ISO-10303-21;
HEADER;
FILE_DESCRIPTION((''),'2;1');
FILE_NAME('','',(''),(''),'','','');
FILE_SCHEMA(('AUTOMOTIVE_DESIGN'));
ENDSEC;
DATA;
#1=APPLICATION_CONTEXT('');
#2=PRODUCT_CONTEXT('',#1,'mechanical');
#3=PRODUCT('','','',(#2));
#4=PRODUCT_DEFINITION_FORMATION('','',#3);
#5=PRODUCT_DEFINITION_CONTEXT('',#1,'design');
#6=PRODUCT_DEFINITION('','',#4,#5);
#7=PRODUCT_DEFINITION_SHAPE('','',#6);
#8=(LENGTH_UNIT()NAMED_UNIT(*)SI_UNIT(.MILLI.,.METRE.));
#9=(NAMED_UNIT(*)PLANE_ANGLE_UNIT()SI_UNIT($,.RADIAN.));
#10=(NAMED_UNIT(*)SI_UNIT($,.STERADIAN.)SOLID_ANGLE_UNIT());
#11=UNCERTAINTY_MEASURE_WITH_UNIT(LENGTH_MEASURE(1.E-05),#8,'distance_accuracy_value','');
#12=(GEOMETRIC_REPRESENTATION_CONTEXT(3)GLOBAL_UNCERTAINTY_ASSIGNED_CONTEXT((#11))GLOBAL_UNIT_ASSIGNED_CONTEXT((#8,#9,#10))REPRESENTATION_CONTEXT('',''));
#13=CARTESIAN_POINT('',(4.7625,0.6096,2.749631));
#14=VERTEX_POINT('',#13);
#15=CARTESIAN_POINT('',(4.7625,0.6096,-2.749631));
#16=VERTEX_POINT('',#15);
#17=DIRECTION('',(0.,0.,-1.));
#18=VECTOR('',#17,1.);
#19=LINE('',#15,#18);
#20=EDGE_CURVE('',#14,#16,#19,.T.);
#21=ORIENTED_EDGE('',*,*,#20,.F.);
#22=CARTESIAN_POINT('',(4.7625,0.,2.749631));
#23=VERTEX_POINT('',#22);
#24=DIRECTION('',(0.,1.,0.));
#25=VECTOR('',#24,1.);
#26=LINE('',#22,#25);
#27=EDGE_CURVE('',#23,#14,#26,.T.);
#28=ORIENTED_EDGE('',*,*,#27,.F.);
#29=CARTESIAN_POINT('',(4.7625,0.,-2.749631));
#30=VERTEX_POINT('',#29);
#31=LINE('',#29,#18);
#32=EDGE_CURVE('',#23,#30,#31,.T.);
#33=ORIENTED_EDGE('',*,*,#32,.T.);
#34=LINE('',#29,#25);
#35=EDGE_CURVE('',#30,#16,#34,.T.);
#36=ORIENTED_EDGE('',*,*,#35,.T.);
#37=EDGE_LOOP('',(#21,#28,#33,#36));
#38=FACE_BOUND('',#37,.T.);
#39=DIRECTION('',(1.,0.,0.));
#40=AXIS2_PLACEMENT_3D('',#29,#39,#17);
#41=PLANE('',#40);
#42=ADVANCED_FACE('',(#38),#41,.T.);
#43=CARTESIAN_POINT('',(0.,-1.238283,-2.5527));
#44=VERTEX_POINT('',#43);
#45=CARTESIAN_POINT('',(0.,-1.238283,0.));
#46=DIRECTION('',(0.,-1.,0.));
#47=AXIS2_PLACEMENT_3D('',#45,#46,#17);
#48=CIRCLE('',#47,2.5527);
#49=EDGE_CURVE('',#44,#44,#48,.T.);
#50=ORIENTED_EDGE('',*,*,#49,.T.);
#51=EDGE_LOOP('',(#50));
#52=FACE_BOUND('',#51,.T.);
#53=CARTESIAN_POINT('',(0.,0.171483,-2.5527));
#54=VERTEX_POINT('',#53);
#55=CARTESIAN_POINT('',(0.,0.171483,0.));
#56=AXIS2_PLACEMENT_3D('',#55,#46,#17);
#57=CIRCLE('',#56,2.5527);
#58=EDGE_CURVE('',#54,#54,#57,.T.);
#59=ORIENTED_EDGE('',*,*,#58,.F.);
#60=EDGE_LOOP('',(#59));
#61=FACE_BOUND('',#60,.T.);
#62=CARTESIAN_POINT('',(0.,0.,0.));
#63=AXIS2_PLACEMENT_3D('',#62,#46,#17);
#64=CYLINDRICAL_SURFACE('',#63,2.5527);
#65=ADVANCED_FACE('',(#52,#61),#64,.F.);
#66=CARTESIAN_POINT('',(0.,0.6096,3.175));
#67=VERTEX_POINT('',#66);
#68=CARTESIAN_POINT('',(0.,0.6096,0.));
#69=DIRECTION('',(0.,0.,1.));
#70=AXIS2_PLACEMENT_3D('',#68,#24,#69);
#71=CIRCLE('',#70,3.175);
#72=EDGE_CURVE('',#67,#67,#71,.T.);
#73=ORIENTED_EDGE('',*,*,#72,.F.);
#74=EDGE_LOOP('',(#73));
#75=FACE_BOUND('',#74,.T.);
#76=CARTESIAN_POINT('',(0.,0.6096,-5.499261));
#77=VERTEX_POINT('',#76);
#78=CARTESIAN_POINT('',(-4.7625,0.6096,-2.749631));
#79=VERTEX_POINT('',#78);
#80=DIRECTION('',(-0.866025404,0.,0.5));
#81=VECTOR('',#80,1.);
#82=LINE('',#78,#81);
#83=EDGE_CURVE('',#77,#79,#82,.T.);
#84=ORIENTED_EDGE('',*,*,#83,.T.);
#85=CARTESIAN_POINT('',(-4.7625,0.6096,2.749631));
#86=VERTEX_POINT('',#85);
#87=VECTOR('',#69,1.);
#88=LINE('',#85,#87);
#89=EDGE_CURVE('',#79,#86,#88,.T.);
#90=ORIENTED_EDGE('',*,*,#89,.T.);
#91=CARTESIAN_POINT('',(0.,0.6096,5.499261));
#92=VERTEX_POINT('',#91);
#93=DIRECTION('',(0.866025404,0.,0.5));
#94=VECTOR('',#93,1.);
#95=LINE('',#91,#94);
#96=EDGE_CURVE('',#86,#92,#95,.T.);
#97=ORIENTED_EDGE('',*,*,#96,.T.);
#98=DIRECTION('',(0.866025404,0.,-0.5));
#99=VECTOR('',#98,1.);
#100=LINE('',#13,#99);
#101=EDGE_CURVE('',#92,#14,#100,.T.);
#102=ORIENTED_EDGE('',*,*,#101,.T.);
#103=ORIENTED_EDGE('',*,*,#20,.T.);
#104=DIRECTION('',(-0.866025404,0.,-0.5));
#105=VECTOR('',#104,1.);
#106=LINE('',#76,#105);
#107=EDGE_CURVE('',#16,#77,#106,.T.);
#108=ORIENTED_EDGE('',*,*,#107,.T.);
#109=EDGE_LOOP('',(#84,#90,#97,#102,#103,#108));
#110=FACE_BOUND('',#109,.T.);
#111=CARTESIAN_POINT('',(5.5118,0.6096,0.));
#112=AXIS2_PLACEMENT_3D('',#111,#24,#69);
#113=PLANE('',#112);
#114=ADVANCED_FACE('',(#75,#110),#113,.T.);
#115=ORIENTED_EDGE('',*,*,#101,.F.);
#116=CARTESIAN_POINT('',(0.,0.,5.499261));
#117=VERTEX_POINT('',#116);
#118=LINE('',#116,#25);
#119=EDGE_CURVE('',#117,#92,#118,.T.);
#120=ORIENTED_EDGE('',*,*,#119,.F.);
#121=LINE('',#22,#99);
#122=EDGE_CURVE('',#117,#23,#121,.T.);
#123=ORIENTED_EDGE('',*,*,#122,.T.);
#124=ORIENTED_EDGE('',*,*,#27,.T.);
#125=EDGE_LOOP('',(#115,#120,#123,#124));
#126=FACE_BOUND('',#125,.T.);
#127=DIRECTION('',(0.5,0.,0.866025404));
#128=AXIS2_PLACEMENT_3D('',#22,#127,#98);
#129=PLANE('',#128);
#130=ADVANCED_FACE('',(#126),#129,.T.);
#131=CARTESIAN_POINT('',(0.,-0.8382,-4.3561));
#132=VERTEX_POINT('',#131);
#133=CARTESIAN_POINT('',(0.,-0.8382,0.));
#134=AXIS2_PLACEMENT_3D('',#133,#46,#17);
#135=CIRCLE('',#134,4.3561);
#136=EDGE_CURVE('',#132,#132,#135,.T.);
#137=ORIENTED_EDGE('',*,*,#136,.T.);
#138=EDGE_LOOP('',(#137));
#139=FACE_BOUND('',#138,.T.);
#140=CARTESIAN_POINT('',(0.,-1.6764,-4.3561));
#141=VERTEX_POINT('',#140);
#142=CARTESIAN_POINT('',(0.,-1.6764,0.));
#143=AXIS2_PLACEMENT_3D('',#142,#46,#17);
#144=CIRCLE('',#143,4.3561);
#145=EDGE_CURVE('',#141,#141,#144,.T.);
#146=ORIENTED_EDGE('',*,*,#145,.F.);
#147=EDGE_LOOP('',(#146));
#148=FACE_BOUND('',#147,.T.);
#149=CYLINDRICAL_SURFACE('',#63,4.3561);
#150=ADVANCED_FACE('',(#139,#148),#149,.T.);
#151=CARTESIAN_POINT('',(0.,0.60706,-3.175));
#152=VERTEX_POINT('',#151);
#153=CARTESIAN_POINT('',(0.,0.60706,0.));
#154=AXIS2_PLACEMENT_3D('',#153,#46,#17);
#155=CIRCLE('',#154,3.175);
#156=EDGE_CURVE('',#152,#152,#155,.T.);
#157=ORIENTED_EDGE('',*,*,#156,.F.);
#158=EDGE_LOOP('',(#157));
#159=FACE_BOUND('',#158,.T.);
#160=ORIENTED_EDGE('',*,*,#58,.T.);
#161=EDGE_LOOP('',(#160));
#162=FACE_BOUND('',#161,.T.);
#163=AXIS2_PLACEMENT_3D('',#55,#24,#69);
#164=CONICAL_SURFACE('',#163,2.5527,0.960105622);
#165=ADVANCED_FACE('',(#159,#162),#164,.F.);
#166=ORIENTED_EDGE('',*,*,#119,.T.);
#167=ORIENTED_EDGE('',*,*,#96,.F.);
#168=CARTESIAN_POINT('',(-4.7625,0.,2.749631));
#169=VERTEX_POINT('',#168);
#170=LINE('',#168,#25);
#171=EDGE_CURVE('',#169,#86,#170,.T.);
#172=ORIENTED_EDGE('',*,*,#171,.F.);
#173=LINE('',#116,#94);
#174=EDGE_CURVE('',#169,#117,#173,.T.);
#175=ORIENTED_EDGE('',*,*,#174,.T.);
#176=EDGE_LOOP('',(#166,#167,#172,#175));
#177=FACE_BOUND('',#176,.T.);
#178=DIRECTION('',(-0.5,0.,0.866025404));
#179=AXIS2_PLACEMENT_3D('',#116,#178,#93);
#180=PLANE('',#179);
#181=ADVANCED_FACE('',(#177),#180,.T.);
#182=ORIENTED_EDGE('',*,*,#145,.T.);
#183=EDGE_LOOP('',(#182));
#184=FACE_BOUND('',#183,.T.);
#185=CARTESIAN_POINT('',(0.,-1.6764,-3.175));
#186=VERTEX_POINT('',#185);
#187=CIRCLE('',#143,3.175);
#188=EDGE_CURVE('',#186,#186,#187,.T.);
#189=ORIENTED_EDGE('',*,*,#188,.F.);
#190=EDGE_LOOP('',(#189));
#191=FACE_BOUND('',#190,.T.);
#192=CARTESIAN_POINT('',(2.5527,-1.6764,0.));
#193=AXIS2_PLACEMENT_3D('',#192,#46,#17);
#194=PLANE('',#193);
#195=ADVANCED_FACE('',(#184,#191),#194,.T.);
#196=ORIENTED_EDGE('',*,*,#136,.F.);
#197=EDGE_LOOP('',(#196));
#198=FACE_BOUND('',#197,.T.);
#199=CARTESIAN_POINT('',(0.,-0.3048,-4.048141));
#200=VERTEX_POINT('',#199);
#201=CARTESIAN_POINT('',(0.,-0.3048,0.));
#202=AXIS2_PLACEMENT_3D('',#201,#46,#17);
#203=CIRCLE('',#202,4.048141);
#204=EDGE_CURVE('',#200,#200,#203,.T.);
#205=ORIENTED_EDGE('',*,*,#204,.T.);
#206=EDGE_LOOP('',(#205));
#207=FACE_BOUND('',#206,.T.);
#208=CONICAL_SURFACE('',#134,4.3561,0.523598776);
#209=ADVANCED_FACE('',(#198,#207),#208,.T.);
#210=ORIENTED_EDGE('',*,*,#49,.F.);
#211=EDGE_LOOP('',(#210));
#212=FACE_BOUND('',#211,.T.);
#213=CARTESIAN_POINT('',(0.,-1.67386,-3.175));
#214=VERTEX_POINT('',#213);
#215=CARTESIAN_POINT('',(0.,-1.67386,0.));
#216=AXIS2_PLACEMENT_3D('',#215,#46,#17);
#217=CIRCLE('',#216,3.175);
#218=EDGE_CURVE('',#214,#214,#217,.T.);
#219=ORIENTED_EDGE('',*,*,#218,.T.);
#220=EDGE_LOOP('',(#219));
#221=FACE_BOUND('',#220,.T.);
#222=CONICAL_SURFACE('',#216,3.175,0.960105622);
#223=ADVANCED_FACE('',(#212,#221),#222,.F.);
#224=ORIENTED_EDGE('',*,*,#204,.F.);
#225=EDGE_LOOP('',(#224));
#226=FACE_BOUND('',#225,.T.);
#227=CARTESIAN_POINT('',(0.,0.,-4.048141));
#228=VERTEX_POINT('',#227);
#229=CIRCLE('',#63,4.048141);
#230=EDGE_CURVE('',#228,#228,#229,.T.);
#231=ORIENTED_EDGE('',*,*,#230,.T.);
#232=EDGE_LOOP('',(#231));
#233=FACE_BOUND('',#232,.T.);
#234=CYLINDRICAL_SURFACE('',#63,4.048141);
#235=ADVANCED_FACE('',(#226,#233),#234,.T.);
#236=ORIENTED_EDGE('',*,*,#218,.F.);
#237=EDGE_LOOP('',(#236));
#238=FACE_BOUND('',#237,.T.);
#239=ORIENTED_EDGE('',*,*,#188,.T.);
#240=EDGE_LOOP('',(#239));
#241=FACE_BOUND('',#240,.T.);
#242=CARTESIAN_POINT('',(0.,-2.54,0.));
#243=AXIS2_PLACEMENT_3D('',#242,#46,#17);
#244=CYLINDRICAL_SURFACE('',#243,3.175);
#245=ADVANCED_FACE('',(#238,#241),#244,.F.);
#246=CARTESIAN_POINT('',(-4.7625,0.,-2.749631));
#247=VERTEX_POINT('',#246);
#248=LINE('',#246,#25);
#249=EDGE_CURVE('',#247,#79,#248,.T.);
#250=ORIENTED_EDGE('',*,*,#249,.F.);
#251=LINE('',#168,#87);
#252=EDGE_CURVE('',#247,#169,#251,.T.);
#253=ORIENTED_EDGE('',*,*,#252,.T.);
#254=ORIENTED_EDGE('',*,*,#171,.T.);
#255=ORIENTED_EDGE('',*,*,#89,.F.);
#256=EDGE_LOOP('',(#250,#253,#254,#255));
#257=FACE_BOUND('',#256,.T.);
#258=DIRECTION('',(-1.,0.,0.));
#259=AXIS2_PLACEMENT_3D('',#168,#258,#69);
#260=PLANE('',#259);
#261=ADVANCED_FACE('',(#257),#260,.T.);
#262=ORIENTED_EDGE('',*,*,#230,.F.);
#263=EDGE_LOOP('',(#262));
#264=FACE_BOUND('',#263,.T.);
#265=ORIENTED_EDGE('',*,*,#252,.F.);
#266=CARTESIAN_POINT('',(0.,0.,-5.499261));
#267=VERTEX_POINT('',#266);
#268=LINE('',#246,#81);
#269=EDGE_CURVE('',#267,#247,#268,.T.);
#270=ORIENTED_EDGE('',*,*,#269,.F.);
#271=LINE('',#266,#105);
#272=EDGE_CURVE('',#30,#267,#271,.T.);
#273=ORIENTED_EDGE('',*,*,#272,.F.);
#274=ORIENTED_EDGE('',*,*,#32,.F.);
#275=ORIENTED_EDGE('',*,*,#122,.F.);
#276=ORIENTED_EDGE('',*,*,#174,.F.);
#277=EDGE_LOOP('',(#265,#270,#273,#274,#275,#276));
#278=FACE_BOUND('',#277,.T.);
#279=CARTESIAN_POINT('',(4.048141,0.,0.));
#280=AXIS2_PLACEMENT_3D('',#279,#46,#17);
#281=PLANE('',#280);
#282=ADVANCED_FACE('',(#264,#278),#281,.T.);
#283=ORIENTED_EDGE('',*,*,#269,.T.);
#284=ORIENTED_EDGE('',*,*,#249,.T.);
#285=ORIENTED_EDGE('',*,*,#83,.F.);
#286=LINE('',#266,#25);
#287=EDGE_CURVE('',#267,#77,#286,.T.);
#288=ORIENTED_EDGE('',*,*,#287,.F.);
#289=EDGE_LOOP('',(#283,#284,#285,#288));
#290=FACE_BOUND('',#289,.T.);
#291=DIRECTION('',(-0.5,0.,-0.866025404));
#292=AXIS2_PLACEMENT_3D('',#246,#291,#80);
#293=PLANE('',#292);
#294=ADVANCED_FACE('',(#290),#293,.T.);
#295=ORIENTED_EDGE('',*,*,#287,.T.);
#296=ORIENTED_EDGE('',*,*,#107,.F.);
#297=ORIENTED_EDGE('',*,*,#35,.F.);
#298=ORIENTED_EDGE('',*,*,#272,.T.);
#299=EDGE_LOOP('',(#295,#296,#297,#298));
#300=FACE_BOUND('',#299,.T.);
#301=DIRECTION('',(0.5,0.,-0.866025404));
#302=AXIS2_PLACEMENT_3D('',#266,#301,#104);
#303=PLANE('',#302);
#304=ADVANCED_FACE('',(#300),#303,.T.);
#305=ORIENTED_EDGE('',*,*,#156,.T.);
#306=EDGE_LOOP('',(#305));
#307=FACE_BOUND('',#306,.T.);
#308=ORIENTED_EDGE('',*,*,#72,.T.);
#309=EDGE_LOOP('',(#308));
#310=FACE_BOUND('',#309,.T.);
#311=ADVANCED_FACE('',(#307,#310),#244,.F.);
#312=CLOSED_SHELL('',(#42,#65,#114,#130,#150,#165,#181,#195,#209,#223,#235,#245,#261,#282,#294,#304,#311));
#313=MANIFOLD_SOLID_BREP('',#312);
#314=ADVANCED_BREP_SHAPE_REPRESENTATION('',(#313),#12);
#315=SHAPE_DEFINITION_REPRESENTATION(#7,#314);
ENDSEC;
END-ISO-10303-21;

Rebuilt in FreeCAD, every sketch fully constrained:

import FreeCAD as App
import Part
import Sketcher
from FreeCAD import Vector
Q = App.Units.Quantity


def add_polygon(sketch, points):
    """Adds a closed chain of lines whose ends are joined by coincident constraints."""
    first, n = sketch.GeometryCount, len(points)
    for a, b in zip(points, points[1:] + points[:1]):
        sketch.addGeometry(Part.LineSegment(App.Vector(*a, 0), App.Vector(*b, 0)), False)
    for i in range(n):
        sketch.addConstraint(Sketcher.Constraint("Coincident", first + i, 2, first + (i + 1) % n, 1))

doc = App.newDocument("Part")
body = doc.addObject("PartDesign::Body", "Body")

# Sketch on XY plane
sketch1 = body.newObject("Sketcher::SketchObject", "Sketch")
sketch1.AttachmentSupport = (doc.getObject("XY_Plane"), [""])
sketch1.MapMode = "FlatFace"
add_polygon(sketch1, [(4.05, 0), (5.51, 0), (5.51, 0.61), (2.55, 0.61), (2.55, -1.68), (4.36, -1.68), (4.36, -0.84), (4.05, -0.3)])  # lines 0-7
sketch1.addConstraint([
    Sketcher.Constraint("Horizontal", 0),
    Sketcher.Constraint("Vertical", 1),
    Sketcher.Constraint("Horizontal", 2),
    Sketcher.Constraint("Vertical", 3),
    Sketcher.Constraint("Horizontal", 4),
    Sketcher.Constraint("Vertical", 5),
    Sketcher.Constraint("Vertical", 7),
    Sketcher.Constraint("PointOnObject", 0, 2, -1),
    Sketcher.Constraint("Angle", 6, Q("120 deg")),
    Sketcher.Constraint("DistanceY", 3, 2, 3, 1, Q("0.09 in")),
    Sketcher.Constraint("DistanceX", 4, 1, 4, 2, Q("0.071 in")),
    Sketcher.Constraint("DistanceY", 1, 1, 1, 2, Q("0.024 in")),
    Sketcher.Constraint("DistanceY", 5, 1, 5, 2, Q("0.033 in")),
    Sketcher.Constraint("DistanceY", 7, 1, 7, 2, Q("0.012 in")),
    Sketcher.Constraint("DistanceX", 2, 2, 2, 1, Q("0.1165 in")),
    Sketcher.Constraint("DistanceX", -1, 1, 0, 2, Q("0.217 in")),
])
revolution = body.newObject("PartDesign::Revolution", "Revolution")
revolution.Profile = sketch1
revolution.ReferenceAxis = (sketch1, ["V_Axis"])
revolution.Angle = 360

# Sketch on XY plane
sketch2 = body.newObject("Sketcher::SketchObject", "Sketch001")
sketch2.AttachmentSupport = (doc.getObject("XY_Plane"), [""])
sketch2.MapMode = "FlatFace"
add_polygon(sketch2, [(3.17, -1.93), (3.17, -1.67), (2.55, -1.24), (2.55, -1.93)])  # lines 0-3
add_polygon(sketch2, [(2.55, 0.17), (3.17, 0.61), (3.17, 0.86), (2.55, 0.86)])  # lines 4-7
sketch2.addConstraint([
    Sketcher.Constraint("Vertical", 0),
    Sketcher.Constraint("Vertical", 2),
    Sketcher.Constraint("Horizontal", 3),
    Sketcher.Constraint("Vertical", 5),
    Sketcher.Constraint("Horizontal", 6),
    Sketcher.Constraint("Vertical", 7),
    Sketcher.Constraint("Vertical", 3, 2, 4, 2),
    Sketcher.Constraint("Vertical", 2, 2, 6, 2),
    Sketcher.Constraint("Equal", 0, 5),
    Sketcher.Constraint("Equal", 2, 7),
    Sketcher.Constraint("Angle", 1, Q("145.01 deg")),
    Sketcher.Constraint("DistanceY", 3, 2, 5, 2, Q("0.11 in")),
    Sketcher.Constraint("DistanceX", 3, 1, 3, 2, Q("0.0245 in")),
    Sketcher.Constraint("DistanceY", 0, 1, 0, 2, Q("0.0101 in")),
    Sketcher.Constraint("DistanceX", -1, 1, 0, 2, Q("0.125 in")),
    Sketcher.Constraint("DistanceY", 2, 2, -1, 1, Q("0.076 in")),
])
groove = body.newObject("PartDesign::Groove", "Groove")
groove.Profile = sketch2
groove.ReferenceAxis = (sketch2, ["V_Axis"])
groove.Angle = 360

# Sketch on XZ plane
sketch3 = body.newObject("Sketcher::SketchObject", "Sketch002")
sketch3.AttachmentSupport = (doc.getObject("XZ_Plane"), [""])
sketch3.MapMode = "FlatFace"
sketch3.AttachmentOffset = App.Placement(Vector(0, 0, -0.024 * 25.4), App.Rotation())
sketch3.addGeometry(Part.Circle(Vector(0, 0, 0), Vector(0, 0, 1), 6), False)  # 0
add_polygon(sketch3, [(5, 3), (0, 5), (-5, 3), (-5, -3), (0, -5), (5, -3)])  # lines 1-6
sketch3.addConstraint([
    Sketcher.Constraint("Vertical", 3),
    Sketcher.Constraint("Vertical", 6),
    Sketcher.Constraint("Coincident", 0, 3, -1, 1),
    Sketcher.Constraint("Symmetric", 1, 2, 4, 2, -1, 1),
    Sketcher.Constraint("Symmetric", 2, 2, 5, 2, -1, 1),
    Sketcher.Constraint("PointOnObject", 1, 2, -2),
    Sketcher.Constraint("Parallel", 1, 4),
    Sketcher.Constraint("Horizontal", 3, 2, 5, 2),
    Sketcher.Constraint("Diameter", 0, Q("0.436 in")),
    Sketcher.Constraint("Angle", 1, Q("150 deg")),
    Sketcher.Constraint("DistanceX", 2, 2, -1, 1, Q("0.1875 in")),
    Sketcher.Constraint("DistanceY", 3, 2, 3, 1, Q("5.499261 mm")),
])
pocket1 = body.newObject("PartDesign::Pocket", "Pocket")
pocket1.Profile = sketch3
pocket1.Length = Q("0.024 in")
pocket1.Reversed = True

doc.recompute()
